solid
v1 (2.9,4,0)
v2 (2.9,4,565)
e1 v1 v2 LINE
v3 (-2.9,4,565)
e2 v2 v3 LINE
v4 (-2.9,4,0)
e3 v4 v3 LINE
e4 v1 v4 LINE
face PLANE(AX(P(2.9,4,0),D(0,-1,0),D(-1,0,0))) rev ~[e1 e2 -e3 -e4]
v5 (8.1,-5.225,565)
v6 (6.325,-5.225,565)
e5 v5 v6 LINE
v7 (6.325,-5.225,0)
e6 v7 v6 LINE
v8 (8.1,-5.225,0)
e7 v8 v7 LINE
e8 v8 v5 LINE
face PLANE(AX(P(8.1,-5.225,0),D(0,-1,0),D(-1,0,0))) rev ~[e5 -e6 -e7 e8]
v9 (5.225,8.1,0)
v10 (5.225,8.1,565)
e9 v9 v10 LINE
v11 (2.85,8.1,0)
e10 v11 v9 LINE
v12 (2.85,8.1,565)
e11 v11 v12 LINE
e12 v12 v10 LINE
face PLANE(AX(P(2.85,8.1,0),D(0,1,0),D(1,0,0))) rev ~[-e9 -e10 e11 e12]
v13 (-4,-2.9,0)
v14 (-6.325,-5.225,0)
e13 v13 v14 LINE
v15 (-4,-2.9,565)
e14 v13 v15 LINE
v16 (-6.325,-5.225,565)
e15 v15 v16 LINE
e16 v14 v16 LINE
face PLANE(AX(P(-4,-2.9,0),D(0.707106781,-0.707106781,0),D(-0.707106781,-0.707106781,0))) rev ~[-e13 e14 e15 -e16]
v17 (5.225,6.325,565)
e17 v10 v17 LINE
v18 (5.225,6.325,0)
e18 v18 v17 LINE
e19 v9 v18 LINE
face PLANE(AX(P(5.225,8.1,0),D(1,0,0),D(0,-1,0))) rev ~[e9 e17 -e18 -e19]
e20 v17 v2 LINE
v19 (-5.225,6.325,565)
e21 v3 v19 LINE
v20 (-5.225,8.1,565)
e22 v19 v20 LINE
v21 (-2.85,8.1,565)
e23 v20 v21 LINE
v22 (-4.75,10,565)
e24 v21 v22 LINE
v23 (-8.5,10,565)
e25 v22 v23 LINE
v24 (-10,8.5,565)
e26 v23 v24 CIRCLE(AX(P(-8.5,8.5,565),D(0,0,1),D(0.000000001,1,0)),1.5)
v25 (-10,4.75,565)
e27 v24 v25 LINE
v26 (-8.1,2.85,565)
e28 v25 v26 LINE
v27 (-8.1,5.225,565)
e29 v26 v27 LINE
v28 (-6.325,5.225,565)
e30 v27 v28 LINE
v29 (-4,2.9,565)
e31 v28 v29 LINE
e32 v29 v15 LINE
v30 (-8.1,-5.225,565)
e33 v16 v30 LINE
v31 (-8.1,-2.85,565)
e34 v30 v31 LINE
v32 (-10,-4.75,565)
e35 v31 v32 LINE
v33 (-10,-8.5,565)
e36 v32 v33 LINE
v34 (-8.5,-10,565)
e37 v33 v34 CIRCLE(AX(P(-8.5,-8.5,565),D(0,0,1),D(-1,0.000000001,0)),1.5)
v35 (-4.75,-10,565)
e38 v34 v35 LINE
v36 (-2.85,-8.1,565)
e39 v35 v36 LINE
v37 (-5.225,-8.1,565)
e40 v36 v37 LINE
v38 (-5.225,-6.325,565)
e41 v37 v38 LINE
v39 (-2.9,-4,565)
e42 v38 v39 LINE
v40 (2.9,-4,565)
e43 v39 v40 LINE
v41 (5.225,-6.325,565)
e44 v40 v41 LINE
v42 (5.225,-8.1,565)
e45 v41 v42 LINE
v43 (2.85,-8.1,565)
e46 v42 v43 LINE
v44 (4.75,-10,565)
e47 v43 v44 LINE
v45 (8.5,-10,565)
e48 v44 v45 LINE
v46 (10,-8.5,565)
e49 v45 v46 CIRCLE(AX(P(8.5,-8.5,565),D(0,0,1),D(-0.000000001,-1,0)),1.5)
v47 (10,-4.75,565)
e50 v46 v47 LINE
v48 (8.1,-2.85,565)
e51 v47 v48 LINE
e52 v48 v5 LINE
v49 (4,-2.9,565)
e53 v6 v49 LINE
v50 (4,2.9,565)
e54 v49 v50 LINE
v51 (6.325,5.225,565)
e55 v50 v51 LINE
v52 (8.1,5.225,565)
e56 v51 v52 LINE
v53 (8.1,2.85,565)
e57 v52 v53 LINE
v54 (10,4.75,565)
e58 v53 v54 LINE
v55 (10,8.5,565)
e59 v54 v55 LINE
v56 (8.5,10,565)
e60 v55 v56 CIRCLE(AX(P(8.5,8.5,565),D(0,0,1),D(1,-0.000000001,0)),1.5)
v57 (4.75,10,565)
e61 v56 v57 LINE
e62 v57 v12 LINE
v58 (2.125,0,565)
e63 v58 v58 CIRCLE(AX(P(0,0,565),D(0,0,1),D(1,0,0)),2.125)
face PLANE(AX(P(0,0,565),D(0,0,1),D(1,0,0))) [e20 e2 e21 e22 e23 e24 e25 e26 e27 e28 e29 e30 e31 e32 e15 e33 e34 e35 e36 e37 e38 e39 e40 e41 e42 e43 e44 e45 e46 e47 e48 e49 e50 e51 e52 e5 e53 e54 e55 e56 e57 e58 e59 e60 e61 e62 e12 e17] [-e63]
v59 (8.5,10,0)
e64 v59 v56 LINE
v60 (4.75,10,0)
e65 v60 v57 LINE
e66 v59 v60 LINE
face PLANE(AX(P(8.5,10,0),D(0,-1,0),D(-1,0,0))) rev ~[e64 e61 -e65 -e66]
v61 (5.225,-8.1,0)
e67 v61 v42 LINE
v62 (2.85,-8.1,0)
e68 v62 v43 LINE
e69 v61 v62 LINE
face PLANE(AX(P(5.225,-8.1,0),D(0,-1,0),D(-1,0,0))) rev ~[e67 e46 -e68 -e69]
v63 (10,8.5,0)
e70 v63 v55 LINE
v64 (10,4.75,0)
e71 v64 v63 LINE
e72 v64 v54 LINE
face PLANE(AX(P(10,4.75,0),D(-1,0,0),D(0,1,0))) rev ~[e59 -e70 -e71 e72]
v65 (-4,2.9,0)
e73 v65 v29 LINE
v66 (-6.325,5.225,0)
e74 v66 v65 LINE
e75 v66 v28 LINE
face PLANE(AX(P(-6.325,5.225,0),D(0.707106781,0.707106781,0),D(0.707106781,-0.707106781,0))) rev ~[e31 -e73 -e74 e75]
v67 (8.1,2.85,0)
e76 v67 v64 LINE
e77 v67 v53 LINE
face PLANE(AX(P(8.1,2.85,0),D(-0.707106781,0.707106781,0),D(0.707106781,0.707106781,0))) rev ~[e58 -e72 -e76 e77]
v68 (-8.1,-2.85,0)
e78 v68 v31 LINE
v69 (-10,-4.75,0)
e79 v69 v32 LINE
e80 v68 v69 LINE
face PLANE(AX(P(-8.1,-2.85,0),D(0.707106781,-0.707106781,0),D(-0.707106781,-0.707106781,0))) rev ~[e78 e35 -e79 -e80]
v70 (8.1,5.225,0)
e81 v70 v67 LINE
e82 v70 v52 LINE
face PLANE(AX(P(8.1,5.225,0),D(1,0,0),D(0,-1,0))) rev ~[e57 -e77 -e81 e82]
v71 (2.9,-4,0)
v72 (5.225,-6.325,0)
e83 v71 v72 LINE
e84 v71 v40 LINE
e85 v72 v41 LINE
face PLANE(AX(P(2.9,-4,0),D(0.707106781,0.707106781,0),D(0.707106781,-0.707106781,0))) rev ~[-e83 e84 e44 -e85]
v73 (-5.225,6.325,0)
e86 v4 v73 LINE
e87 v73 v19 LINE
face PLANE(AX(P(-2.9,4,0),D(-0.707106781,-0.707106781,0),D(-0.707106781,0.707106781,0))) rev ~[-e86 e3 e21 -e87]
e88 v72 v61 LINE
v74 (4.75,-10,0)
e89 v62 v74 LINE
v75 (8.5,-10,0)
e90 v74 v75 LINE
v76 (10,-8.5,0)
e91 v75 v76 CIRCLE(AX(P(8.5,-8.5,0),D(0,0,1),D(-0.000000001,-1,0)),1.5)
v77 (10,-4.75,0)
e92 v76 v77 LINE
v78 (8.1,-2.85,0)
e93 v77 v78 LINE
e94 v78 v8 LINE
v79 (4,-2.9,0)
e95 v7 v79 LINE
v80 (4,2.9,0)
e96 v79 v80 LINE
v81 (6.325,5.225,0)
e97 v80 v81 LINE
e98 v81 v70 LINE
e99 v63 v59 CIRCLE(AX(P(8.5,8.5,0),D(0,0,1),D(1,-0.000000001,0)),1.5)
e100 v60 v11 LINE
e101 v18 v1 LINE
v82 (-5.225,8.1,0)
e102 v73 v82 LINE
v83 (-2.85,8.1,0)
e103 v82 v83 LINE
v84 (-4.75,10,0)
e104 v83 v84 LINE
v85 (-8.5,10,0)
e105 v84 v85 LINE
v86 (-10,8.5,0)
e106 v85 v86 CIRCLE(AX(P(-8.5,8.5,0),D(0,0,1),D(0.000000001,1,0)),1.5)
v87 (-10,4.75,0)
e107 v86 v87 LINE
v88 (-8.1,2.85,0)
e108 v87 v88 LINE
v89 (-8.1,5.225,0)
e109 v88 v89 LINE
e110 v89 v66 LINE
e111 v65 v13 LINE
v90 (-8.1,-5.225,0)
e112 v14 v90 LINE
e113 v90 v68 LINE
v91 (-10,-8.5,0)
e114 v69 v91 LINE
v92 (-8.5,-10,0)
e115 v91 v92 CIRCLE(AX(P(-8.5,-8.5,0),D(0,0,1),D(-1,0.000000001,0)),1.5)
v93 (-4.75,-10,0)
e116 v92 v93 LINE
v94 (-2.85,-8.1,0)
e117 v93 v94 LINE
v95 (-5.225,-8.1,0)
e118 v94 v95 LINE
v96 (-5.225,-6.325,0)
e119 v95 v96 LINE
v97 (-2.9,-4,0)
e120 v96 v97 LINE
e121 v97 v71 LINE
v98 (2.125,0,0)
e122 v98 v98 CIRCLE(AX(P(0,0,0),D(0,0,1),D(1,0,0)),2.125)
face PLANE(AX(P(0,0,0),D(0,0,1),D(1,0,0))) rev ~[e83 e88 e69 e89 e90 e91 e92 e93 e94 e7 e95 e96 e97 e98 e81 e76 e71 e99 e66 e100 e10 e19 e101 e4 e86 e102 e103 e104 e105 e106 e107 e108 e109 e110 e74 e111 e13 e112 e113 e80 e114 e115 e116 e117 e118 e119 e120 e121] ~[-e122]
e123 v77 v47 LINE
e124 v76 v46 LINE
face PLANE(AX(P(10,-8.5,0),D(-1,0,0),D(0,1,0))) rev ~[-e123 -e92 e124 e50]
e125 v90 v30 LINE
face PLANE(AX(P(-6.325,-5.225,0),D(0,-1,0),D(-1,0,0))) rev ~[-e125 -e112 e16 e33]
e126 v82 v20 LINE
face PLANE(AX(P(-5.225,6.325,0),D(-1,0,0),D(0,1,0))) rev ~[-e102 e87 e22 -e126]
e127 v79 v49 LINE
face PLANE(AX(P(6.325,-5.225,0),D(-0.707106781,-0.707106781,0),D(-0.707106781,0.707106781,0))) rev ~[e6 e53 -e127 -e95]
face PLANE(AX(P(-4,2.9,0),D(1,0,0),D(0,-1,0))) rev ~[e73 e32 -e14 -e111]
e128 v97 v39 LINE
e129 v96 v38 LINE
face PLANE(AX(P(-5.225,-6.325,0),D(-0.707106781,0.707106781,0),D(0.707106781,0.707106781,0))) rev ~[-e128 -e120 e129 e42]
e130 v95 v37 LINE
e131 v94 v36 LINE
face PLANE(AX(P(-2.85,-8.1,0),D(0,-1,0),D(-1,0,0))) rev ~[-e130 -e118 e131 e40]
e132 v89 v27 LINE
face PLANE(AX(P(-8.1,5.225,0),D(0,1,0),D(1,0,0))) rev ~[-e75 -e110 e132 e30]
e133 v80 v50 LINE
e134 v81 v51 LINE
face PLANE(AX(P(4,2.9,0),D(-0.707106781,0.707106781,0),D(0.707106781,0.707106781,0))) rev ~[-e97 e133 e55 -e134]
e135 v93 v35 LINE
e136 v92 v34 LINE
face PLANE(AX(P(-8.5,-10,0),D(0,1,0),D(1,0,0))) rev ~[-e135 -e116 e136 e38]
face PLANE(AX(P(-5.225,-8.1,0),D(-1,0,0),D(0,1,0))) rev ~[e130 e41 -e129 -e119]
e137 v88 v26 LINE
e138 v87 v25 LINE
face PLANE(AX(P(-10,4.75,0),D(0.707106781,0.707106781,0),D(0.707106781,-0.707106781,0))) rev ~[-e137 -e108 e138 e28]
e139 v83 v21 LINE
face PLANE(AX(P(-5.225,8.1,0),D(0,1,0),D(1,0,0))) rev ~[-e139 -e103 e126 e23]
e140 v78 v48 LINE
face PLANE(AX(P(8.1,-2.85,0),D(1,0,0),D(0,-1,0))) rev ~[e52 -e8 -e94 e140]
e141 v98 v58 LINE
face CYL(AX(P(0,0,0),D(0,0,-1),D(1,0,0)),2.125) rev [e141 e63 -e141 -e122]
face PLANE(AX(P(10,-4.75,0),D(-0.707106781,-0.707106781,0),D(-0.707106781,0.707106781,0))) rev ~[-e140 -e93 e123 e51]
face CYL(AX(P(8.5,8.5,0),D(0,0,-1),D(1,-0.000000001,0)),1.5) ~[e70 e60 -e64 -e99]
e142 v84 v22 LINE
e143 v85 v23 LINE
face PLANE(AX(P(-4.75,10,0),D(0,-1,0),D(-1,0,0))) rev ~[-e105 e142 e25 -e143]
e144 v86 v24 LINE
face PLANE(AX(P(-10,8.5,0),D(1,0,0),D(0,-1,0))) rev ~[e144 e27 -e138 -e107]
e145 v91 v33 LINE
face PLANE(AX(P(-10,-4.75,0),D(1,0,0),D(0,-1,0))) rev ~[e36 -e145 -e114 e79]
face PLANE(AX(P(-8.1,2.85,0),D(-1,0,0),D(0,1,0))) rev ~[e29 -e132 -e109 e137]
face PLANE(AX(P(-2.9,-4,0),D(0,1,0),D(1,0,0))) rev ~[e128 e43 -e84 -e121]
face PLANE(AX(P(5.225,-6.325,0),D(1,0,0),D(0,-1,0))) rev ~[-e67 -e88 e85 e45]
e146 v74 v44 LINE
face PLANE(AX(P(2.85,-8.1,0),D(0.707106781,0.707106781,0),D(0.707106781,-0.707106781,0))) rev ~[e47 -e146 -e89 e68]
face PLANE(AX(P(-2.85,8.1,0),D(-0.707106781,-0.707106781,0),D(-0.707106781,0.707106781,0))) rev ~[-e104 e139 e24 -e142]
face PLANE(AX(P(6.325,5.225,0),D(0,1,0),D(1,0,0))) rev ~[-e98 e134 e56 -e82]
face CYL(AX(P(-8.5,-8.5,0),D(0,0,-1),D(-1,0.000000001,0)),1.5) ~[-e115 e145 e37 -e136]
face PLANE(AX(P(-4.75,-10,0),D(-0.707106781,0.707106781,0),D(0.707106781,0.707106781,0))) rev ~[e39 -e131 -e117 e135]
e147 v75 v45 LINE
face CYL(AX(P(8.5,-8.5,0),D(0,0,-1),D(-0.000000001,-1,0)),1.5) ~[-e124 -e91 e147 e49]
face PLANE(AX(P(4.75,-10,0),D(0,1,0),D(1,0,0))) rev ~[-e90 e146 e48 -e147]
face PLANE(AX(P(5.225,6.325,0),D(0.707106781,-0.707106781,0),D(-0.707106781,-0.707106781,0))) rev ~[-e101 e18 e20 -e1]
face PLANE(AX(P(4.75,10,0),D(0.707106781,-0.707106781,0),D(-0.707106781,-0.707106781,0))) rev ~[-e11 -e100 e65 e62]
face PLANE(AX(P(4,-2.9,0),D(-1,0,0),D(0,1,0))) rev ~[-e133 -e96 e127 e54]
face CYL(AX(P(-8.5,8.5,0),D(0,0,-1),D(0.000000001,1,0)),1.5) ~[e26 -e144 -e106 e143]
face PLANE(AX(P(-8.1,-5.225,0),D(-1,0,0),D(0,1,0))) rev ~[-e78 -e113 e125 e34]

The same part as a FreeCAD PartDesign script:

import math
import FreeCAD as App
import Part
import Sketcher

V = App.Vector

doc = App.newDocument("Part")
body = doc.addObject("PartDesign::Body", "Body")

# Sketch on XY plane
sketch1 = body.newObject("Sketcher::SketchObject", "Sketch")
sketch1.AttachmentSupport = (doc.getObject("XY_Plane"), [""])
sketch1.MapMode = "FlatFace"
sketch1.addGeometry([
    Part.LineSegment(V(8.1, 5.2, 0), V(8.1, 2.9, 0)),  # 0
    Part.LineSegment(V(8.1, 2.9, 0), V(10, 4.8, 0)),  # 1
    Part.LineSegment(V(10, 4.8, 0), V(10, 8.5, 0)),  # 2
    Part.ArcOfCircle(Part.Circle(V(8.5, 8.5, 0), V(0, 0, 1), 1.5), math.radians(0), math.radians(90)),  # 3
    Part.LineSegment(V(8.5, 10, 0), V(4.8, 10, 0)),  # 4
    Part.LineSegment(V(4.8, 10, 0), V(2.9, 8.1, 0)),  # 5
    Part.LineSegment(V(2.9, 8.1, 0), V(5.2, 8.1, 0)),  # 6
    Part.LineSegment(V(5.2, 8.1, 0), V(5.2, 6.3, 0)),  # 7
    Part.LineSegment(V(5.2, 6.3, 0), V(2.9, 4, 0)),  # 8
    Part.LineSegment(V(2.9, 4, 0), V(-2.9, 4, 0)),  # 9
    Part.LineSegment(V(-2.9, 4, 0), V(-5.2, 6.3, 0)),  # 10
    Part.LineSegment(V(-5.2, 6.3, 0), V(-5.2, 8.1, 0)),  # 11
    Part.LineSegment(V(-5.2, 8.1, 0), V(-2.9, 8.1, 0)),  # 12
    Part.LineSegment(V(-2.9, 8.1, 0), V(-4.8, 10, 0)),  # 13
    Part.LineSegment(V(-4.8, 10, 0), V(-8.5, 10, 0)),  # 14
    Part.ArcOfCircle(Part.Circle(V(-8.5, 8.5, 0), V(0, 0, 1), 1.5), math.radians(90), math.radians(180)),  # 15
    Part.LineSegment(V(-10, 8.5, 0), V(-10, 4.8, 0)),  # 16
    Part.LineSegment(V(-10, 4.8, 0), V(-8.1, 2.9, 0)),  # 17
    Part.LineSegment(V(-8.1, 2.9, 0), V(-8.1, 5.2, 0)),  # 18
    Part.LineSegment(V(-8.1, 5.2, 0), V(-6.3, 5.2, 0)),  # 19
    Part.LineSegment(V(-6.3, 5.2, 0), V(-4, 2.9, 0)),  # 20
    Part.LineSegment(V(-4, 2.9, 0), V(-4, -2.9, 0)),  # 21
    Part.LineSegment(V(-4, -2.9, 0), V(-6.3, -5.2, 0)),  # 22
    Part.LineSegment(V(-6.3, -5.2, 0), V(-8.1, -5.2, 0)),  # 23
    Part.LineSegment(V(-8.1, -5.2, 0), V(-8.1, -2.9, 0)),  # 24
    Part.LineSegment(V(-8.1, -2.9, 0), V(-10, -4.8, 0)),  # 25
    Part.LineSegment(V(-10, -4.8, 0), V(-10, -8.5, 0)),  # 26
    Part.ArcOfCircle(Part.Circle(V(-8.5, -8.5, 0), V(0, 0, 1), 1.5), math.radians(180), math.radians(270)),  # 27
    Part.LineSegment(V(-8.5, -10, 0), V(-4.8, -10, 0)),  # 28
    Part.LineSegment(V(-4.8, -10, 0), V(-2.9, -8.1, 0)),  # 29
    Part.LineSegment(V(-2.9, -8.1, 0), V(-5.2, -8.1, 0)),  # 30
    Part.LineSegment(V(-5.2, -8.1, 0), V(-5.2, -6.3, 0)),  # 31
    Part.LineSegment(V(-5.2, -6.3, 0), V(-2.9, -4, 0)),  # 32
    Part.LineSegment(V(-2.9, -4, 0), V(2.9, -4, 0)),  # 33
    Part.LineSegment(V(2.9, -4, 0), V(5.2, -6.3, 0)),  # 34
    Part.LineSegment(V(5.2, -6.3, 0), V(5.2, -8.1, 0)),  # 35
    Part.LineSegment(V(5.2, -8.1, 0), V(2.9, -8.1, 0)),  # 36
    Part.LineSegment(V(2.9, -8.1, 0), V(4.8, -10, 0)),  # 37
    Part.LineSegment(V(4.8, -10, 0), V(8.5, -10, 0)),  # 38
    Part.ArcOfCircle(Part.Circle(V(8.5, -8.5, 0), V(0, 0, 1), 1.5), math.radians(-90), math.radians(0)),  # 39
    Part.LineSegment(V(10, -8.5, 0), V(10, -4.8, 0)),  # 40
    Part.LineSegment(V(10, -4.8, 0), V(8.1, -2.9, 0)),  # 41
    Part.LineSegment(V(8.1, -2.9, 0), V(8.1, -5.2, 0)),  # 42
    Part.LineSegment(V(8.1, -5.2, 0), V(6.3, -5.2, 0)),  # 43
    Part.LineSegment(V(6.3, -5.2, 0), V(4, -2.9, 0)),  # 44
    Part.LineSegment(V(4, -2.9, 0), V(4, 2.9, 0)),  # 45
    Part.LineSegment(V(4, 2.9, 0), V(6.3, 5.2, 0)),  # 46
    Part.LineSegment(V(6.3, 5.2, 0), V(8.1, 5.2, 0)),  # 47
    Part.Circle(V(0, 0, 0), V(0, 0, 1), 2.1),  # 48
], False)
sketch1.addConstraint([
    Sketcher.Constraint("Coincident", 0, 2, 1, 1),
    Sketcher.Constraint("Coincident", 1, 2, 2, 1),
    Sketcher.Constraint("Tangent", 2, 2, 3, 1),
    Sketcher.Constraint("Tangent", 3, 2, 4, 1),
    Sketcher.Constraint("Coincident", 4, 2, 5, 1),
    Sketcher.Constraint("Coincident", 5, 2, 6, 1),
    Sketcher.Constraint("Coincident", 6, 2, 7, 1),
    Sketcher.Constraint("Coincident", 7, 2, 8, 1),
    Sketcher.Constraint("Coincident", 8, 2, 9, 1),
    Sketcher.Constraint("Coincident", 9, 2, 10, 1),
    Sketcher.Constraint("Coincident", 10, 2, 11, 1),
    Sketcher.Constraint("Coincident", 11, 2, 12, 1),
    Sketcher.Constraint("Coincident", 12, 2, 13, 1),
    Sketcher.Constraint("Coincident", 13, 2, 14, 1),
    Sketcher.Constraint("Tangent", 14, 2, 15, 1),
    Sketcher.Constraint("Tangent", 15, 2, 16, 1),
    Sketcher.Constraint("Coincident", 16, 2, 17, 1),
    Sketcher.Constraint("Coincident", 17, 2, 18, 1),
    Sketcher.Constraint("Coincident", 18, 2, 19, 1),
    Sketcher.Constraint("Coincident", 19, 2, 20, 1),
    Sketcher.Constraint("Coincident", 20, 2, 21, 1),
    Sketcher.Constraint("Coincident", 21, 2, 22, 1),
    Sketcher.Constraint("Coincident", 22, 2, 23, 1),
    Sketcher.Constraint("Coincident", 23, 2, 24, 1),
    Sketcher.Constraint("Coincident", 24, 2, 25, 1),
    Sketcher.Constraint("Coincident", 25, 2, 26, 1),
    Sketcher.Constraint("Tangent", 26, 2, 27, 1),
    Sketcher.Constraint("Tangent", 27, 2, 28, 1),
    Sketcher.Constraint("Coincident", 28, 2, 29, 1),
    Sketcher.Constraint("Coincident", 29, 2, 30, 1),
    Sketcher.Constraint("Coincident", 30, 2, 31, 1),
    Sketcher.Constraint("Coincident", 31, 2, 32, 1),
    Sketcher.Constraint("Coincident", 32, 2, 33, 1),
    Sketcher.Constraint("Coincident", 33, 2, 34, 1),
    Sketcher.Constraint("Coincident", 34, 2, 35, 1),
    Sketcher.Constraint("Coincident", 35, 2, 36, 1),
    Sketcher.Constraint("Coincident", 36, 2, 37, 1),
    Sketcher.Constraint("Coincident", 37, 2, 38, 1),
    Sketcher.Constraint("Tangent", 38, 2, 39, 1),
    Sketcher.Constraint("Tangent", 39, 2, 40, 1),
    Sketcher.Constraint("Coincident", 40, 2, 41, 1),
    Sketcher.Constraint("Coincident", 41, 2, 42, 1),
    Sketcher.Constraint("Coincident", 42, 2, 43, 1),
    Sketcher.Constraint("Coincident", 43, 2, 44, 1),
    Sketcher.Constraint("Coincident", 44, 2, 45, 1),
    Sketcher.Constraint("Coincident", 45, 2, 46, 1),
    Sketcher.Constraint("Coincident", 46, 2, 47, 1),
    Sketcher.Constraint("Coincident", 47, 2, 0, 1),
    Sketcher.Constraint("Vertical", 0),
    Sketcher.Constraint("Vertical", 2),
    Sketcher.Constraint("Horizontal", 4),
    Sketcher.Constraint("Horizontal", 6),
    Sketcher.Constraint("Vertical", 7),
    Sketcher.Constraint("Horizontal", 9),
    Sketcher.Constraint("Vertical", 11),
    Sketcher.Constraint("Horizontal", 12),
    Sketcher.Constraint("Horizontal", 14),
    Sketcher.Constraint("Vertical", 16),
    Sketcher.Constraint("Vertical", 18),
    Sketcher.Constraint("Horizontal", 19),
    Sketcher.Constraint("Vertical", 21),
    Sketcher.Constraint("Horizontal", 23),
    Sketcher.Constraint("Vertical", 24),
    Sketcher.Constraint("Vertical", 26),
    Sketcher.Constraint("Horizontal", 28),
    Sketcher.Constraint("Horizontal", 30),
    Sketcher.Constraint("Vertical", 31),
    Sketcher.Constraint("Horizontal", 33),
    Sketcher.Constraint("Vertical", 35),
    Sketcher.Constraint("Horizontal", 36),
    Sketcher.Constraint("Horizontal", 38),
    Sketcher.Constraint("Vertical", 40),
    Sketcher.Constraint("Vertical", 42),
    Sketcher.Constraint("Horizontal", 43),
    Sketcher.Constraint("Vertical", 45),
    Sketcher.Constraint("Horizontal", 47),
    Sketcher.Constraint("Coincident", 48, 3, -1, 1),
    Sketcher.Constraint("Equal", 3, 15),
    Sketcher.Constraint("Equal", 15, 27),
    Sketcher.Constraint("Equal", 27, 39),
    Sketcher.Constraint("Symmetric", 3, 3, 27, 3, -1, 1),
    Sketcher.Constraint("Symmetric", 15, 3, 39, 3, -1, 1),
    Sketcher.Constraint("Symmetric", 0, 2, 24, 2, -1, 1),
    Sketcher.Constraint("Symmetric", 5, 2, 29, 2, -1, 1),
    Sketcher.Constraint("Symmetric", 7, 2, 31, 2, -1, 1),
    Sketcher.Constraint("Symmetric", 8, 2, 32, 2, -1, 1),
    Sketcher.Constraint("Symmetric", 10, 2, 34, 2, -1, 1),
    Sketcher.Constraint("Symmetric", 12, 2, 36, 2, -1, 1),
    Sketcher.Constraint("Symmetric", 17, 2, 41, 2, -1, 1),
    Sketcher.Constraint("Symmetric", 19, 2, 43, 2, -1, 1),
    Sketcher.Constraint("Symmetric", 20, 2, 44, 2, -1, 1),
    Sketcher.Constraint("Symmetric", 22, 2, 46, 2, -1, 1),
    Sketcher.Constraint("Symmetric", 3, 3, 15, 3, -2),
    Sketcher.Constraint("Symmetric", 7, 2, 10, 2, -2),
    Sketcher.Constraint("Symmetric", 5, 2, 12, 2, -2),
    Sketcher.Constraint("Symmetric", 0, 2, 17, 2, -2),
    Sketcher.Constraint("Symmetric", 22, 2, 43, 2, -2),
    Sketcher.Constraint("Parallel", 1, 5),
    Sketcher.Constraint("Parallel", 5, 8),
    Sketcher.Constraint("Perpendicular", 8, 10),
    Sketcher.Constraint("Parallel", 10, 13),
    Sketcher.Constraint("Parallel", 13, 17),
    Sketcher.Constraint("Parallel", 17, 20),
    Sketcher.Constraint("Perpendicular", 20, 22),
    Sketcher.Constraint("Parallel", 22, 25),
    Sketcher.Constraint("Parallel", 25, 29),
    Sketcher.Constraint("Perpendicular", 32, 34),
    Sketcher.Constraint("Parallel", 34, 37),
    Sketcher.Constraint("Parallel", 37, 41),
    Sketcher.Constraint("Perpendicular", 44, 46),
    Sketcher.Constraint("Horizontal", 1, 2, 16, 2),
    Sketcher.Constraint("Equal", 36, 0),
    Sketcher.Constraint("Equal", 38, 2),
    Sketcher.Constraint("Equal", 47, 7),
    Sketcher.Constraint("Equal", 33, 21),
    Sketcher.Constraint("Equal", 1, 5),
    Sketcher.Constraint("Equal", 10, 20),
    Sketcher.Constraint("Radius", 3, 1.5),
    Sketcher.Constraint("Diameter", 48, 4.25),
    Sketcher.Constraint("DistanceX", 9, 2, 9, 1, 5.8),
    Sketcher.Constraint("DistanceX", -1, 1, 1, 2, 10.0),
    Sketcher.Constraint("DistanceY", -1, 1, 8, 2, 4.0),
    Sketcher.Constraint("DistanceX", 4, 2, 4, 1, 3.75),
    Sketcher.Constraint("DistanceX", -1, 1, 0, 2, 8.1),
    Sketcher.Constraint("DistanceX", 6, 1, 6, 2, 2.375),
])
pad1 = body.newObject("PartDesign::Pad", "Pad")
pad1.Profile = sketch1
pad1.Length = 565

doc.recompute()
